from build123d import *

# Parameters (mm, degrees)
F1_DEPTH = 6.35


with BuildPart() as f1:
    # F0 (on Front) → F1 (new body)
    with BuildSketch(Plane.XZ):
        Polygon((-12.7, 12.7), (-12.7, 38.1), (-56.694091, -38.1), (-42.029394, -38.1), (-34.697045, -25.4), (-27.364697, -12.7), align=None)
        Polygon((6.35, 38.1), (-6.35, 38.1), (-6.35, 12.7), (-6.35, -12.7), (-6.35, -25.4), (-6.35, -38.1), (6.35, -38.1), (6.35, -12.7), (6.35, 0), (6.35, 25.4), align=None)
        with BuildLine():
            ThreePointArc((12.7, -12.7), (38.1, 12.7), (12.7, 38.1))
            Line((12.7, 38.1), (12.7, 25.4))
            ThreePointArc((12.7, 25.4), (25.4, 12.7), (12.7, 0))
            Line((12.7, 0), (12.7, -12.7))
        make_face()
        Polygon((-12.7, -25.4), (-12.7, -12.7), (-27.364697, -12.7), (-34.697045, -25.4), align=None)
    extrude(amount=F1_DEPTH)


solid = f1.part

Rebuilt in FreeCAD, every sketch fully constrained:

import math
import FreeCAD as App
import Part
import Sketcher

V = App.Vector
Q = App.Units.Quantity

doc = App.newDocument("Part")
params = doc.addObject("Spreadsheet::Sheet", "Params")
for row, (alias, value) in enumerate([
    ("sketch1_radius", "1 in"),
    ("pad1_length", "0.25 in"),
], start=1):
    params.set(f"A{row}", alias)
    params.set(f"B{row}", "=" + value)
    params.setAlias(f"B{row}", alias)

body = doc.addObject("PartDesign::Body", "Body")
body.AllowCompound = True

# Sketch on XZ plane
sketch1 = doc.addObject("Sketcher::SketchObject", "Sketch")
body.addObject(sketch1)
sketch1.AttachmentSupport = (doc.XZ_Plane, [""])
sketch1.MapMode = "FlatFace"
sketch1.addGeometry([
    Part.LineSegment(V(-13, 13, 0), V(-13, 38, 0)),  # 0
    Part.LineSegment(V(-13, 38, 0), V(-57, -38, 0)),  # 1
    Part.LineSegment(V(-57, -38, 0), V(-42, -38, 0)),  # 2
    Part.LineSegment(V(-42, -38, 0), V(-35, -25, 0)),  # 3
    Part.LineSegment(V(-35, -25, 0), V(-13, -25, 0)),  # 4
    Part.LineSegment(V(-13, -25, 0), V(-13, -13, 0)),  # 5
    Part.LineSegment(V(-13, -13, 0), V(-27, -13, 0)),  # 6
    Part.LineSegment(V(-27, -13, 0), V(-13, 13, 0)),  # 7
    Part.LineSegment(V(6, 38, 0), V(-6, 38, 0)),  # 8
    Part.LineSegment(V(-6, 38, 0), V(-6, -38, 0)),  # 9
    Part.LineSegment(V(-6, -38, 0), V(6, -38, 0)),  # 10
    Part.LineSegment(V(6, -38, 0), V(6, 38, 0)),  # 11
    Part.ArcOfCircle(Part.Circle(V(13, 13, 0), V(0, 0, 1), 25), math.radians(-90), math.radians(90)),  # 12
    Part.LineSegment(V(13, 38, 0), V(13, 25, 0)),  # 13
    Part.ArcOfCircle(Part.Circle(V(13, 13, 0), V(0, 0, 1), 13), math.radians(-90), math.radians(90)),  # 14
    Part.LineSegment(V(13, 0, 0), V(13, -13, 0)),  # 15
], False)
sketch1.addConstraint([
    Sketcher.Constraint("Coincident", 0, 2, 1, 1),
    Sketcher.Constraint("Coincident", 1, 2, 2, 1),
    Sketcher.Constraint("Coincident", 2, 2, 3, 1),
    Sketcher.Constraint("Coincident", 3, 2, 4, 1),
    Sketcher.Constraint("Coincident", 4, 2, 5, 1),
    Sketcher.Constraint("Coincident", 5, 2, 6, 1),
    Sketcher.Constraint("Coincident", 6, 2, 7, 1),
    Sketcher.Constraint("Coincident", 7, 2, 0, 1),
    Sketcher.Constraint("Coincident", 8, 2, 9, 1),
    Sketcher.Constraint("Coincident", 9, 2, 10, 1),
    Sketcher.Constraint("Coincident", 10, 2, 11, 1),
    Sketcher.Constraint("Coincident", 11, 2, 8, 1),
    Sketcher.Constraint("Coincident", 12, 2, 13, 1),
    Sketcher.Constraint("Coincident", 13, 2, 14, 2),
    Sketcher.Constraint("Coincident", 14, 1, 15, 1),
    Sketcher.Constraint("Coincident", 15, 2, 12, 1),
    Sketcher.Constraint("Vertical", 0),
    Sketcher.Constraint("Horizontal", 2),
    Sketcher.Constraint("Horizontal", 4),
    Sketcher.Constraint("Vertical", 5),
    Sketcher.Constraint("Horizontal", 6),
    Sketcher.Constraint("Horizontal", 8),
    Sketcher.Constraint("Vertical", 9),
    Sketcher.Constraint("Horizontal", 10),
    Sketcher.Constraint("Vertical", 11),
    Sketcher.Constraint("Vertical", 13),
    Sketcher.Constraint("Vertical", 15),
    Sketcher.Constraint("Coincident", 14, 3, 12, 3),
    Sketcher.Constraint("Symmetric", 8, 2, 10, 2, -1, 1),
    Sketcher.Constraint("Symmetric", 4, 2, 13, 2, -1, 1),
    Sketcher.Constraint("Symmetric", 7, 2, 15, 2, -1, 1),
    Sketcher.Constraint("Symmetric", 0, 2, 12, 2, -2),
    Sketcher.Constraint("PointOnObject", 14, 1, -1),
    Sketcher.Constraint("Parallel", 1, 3),
    Sketcher.Constraint("Parallel", 3, 7),
    Sketcher.Constraint("Horizontal", 14, 3, 7, 2),
    Sketcher.Constraint("Horizontal", 0, 2, 8, 2),
    Sketcher.Constraint("Horizontal", 2, 2, 9, 2),
    Sketcher.Constraint("Horizontal", 6, 2, 15, 2),
    Sketcher.Constraint("Vertical", 14, 3, 12, 2),
    Sketcher.Constraint("Equal", 2, 6),
    Sketcher.Constraint("Equal", 10, 5),
    Sketcher.Constraint("Radius", 12, Q("1 in")),
    Sketcher.Constraint("Angle", 1, Q("-120 deg")),
    Sketcher.Constraint("DistanceX", 0, 2, 12, 3, Q("1 in")),
])
sketch1.setExpression("Constraints[42]", "Params.sketch1_radius")
pad1 = doc.addObject("PartDesign::Pad", "Pad")
body.addObject(pad1)
pad1.Profile = sketch1
pad1.setExpression("Length", "Params.pad1_length")

doc.recompute()
